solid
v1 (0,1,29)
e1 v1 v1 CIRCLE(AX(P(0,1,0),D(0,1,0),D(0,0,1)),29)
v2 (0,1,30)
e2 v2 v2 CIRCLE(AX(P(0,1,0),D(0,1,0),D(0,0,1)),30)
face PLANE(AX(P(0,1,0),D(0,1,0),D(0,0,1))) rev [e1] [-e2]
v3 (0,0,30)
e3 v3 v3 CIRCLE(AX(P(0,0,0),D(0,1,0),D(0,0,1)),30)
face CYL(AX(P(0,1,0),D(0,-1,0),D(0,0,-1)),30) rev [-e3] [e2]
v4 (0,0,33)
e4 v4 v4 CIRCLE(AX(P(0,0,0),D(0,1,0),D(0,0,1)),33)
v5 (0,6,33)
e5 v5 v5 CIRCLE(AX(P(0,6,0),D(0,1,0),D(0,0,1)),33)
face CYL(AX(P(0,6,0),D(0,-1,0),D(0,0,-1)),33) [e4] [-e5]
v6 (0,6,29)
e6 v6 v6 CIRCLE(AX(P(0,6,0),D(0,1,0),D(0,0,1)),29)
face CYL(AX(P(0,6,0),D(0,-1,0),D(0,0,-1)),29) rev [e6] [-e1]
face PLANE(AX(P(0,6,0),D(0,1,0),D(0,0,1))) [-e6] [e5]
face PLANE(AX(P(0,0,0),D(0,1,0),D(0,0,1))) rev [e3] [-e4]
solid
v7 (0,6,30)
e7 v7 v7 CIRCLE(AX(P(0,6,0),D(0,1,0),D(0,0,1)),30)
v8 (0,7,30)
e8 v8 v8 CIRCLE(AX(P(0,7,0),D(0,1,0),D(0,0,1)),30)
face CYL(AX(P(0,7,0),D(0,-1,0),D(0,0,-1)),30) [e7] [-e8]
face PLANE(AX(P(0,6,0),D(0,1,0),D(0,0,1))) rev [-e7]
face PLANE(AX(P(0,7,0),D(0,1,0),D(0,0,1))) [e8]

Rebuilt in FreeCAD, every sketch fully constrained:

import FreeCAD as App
import Part
import Sketcher
Q = App.Units.Quantity

doc = App.newDocument("Part")
body = doc.addObject("PartDesign::Body", "Body")

sketch1 = doc.addObject("Sketcher::SketchObject", "Sketch")
body.addObject(sketch1)
sketch1.AttachmentSupport = (doc.XZ_Plane, [""])
sketch1.MapMode = "FlatFace"
sketch1.addGeometry([
    Part.Circle(App.Vector(0, 0, 0), App.Vector(0, 0, 1), 33),
    Part.Circle(App.Vector(0, 0, 0), App.Vector(0, 0, 1), 29),
], False)
sketch1.addConstraint([
    Sketcher.Constraint("Coincident", 0, 3, -1, 1),
    Sketcher.Constraint("Coincident", 1, 3, -1, 1),
    Sketcher.Constraint("Diameter", 0, Q("66 mm")),
    Sketcher.Constraint("Diameter", 1, Q("58 mm")),
])
pad1 = doc.addObject("PartDesign::Pad", "Pad")
body.addObject(pad1)
pad1.Profile = sketch1
pad1.Length = 6
pad1.Reversed = True

sketch2 = doc.addObject("Sketcher::SketchObject", "Sketch001")
body.addObject(sketch2)
sketch2.AttachmentSupport = (doc.XZ_Plane, [""])
sketch2.MapMode = "FlatFace"
sketch2.addGeometry(Part.Circle(App.Vector(0, 0, 0), App.Vector(0, 0, 1), 30), False)
sketch2.addConstraint([
    Sketcher.Constraint("Coincident", 0, 3, -1, 1),
    Sketcher.Constraint("Diameter", 0, Q("60 mm")),
])
pocket1 = doc.addObject("PartDesign::Pocket", "Pocket")
body.addObject(pocket1)
pocket1.Profile = sketch2
pocket1.Length = 1
body2 = doc.addObject("PartDesign::Body", "Body001")

sketch3 = doc.addObject("Sketcher::SketchObject", "Sketch002")
body2.addObject(sketch3)
sketch3.AttachmentSupport = (doc.getObject("XZ_Plane001"), [""])
sketch3.MapMode = "FlatFace"
sketch3.AttachmentOffset = App.Placement(App.Vector(0, 0, -6), App.Rotation())
sketch3.addGeometry(Part.Circle(App.Vector(0, 0, 0), App.Vector(0, 0, 1), 30), False)
sketch3.addConstraint([
    Sketcher.Constraint("Coincident", 0, 3, -1, 1),
    Sketcher.Constraint("Diameter", 0, Q("60 mm")),
])
pad2 = doc.addObject("PartDesign::Pad", "Pad001")
body2.addObject(pad2)
pad2.Profile = sketch3
pad2.Length = 1
pad2.Reversed = True

doc.recompute()
